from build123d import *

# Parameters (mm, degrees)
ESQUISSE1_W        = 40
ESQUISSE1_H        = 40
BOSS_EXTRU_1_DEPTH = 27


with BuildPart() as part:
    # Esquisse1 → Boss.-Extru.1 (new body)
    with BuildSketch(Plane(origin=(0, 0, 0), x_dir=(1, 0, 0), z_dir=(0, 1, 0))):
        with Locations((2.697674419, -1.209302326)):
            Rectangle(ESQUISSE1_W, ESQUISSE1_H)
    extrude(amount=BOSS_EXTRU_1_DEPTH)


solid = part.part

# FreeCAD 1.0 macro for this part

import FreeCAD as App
import Part
import Sketcher

V = App.Vector
Q = App.Units.Quantity

doc = App.newDocument("Part")
params = doc.addObject("Spreadsheet::Sheet", "Params")
for row, (alias, value) in enumerate([
    ("sketch1_width", "40 mm"),
    ("pad1_length", "27 mm"),
], start=1):
    params.set(f"A{row}", alias)
    params.set(f"B{row}", "=" + value)
    params.setAlias(f"B{row}", alias)

body = doc.addObject("PartDesign::Body", "Body")

sketch1 = body.newObject("Sketcher::SketchObject", "Sketch")
sketch1.AttachmentSupport = (doc.getObject("XZ_Plane"), [""])
sketch1.MapMode = "FlatFace"
sketch1.addGeometry([
    Part.LineSegment(V(-17, -19, 0), V(-17, 21, 0)),
    Part.LineSegment(V(-17, 21, 0), V(23, 21, 0)),
    Part.LineSegment(V(23, 21, 0), V(23, -19, 0)),
    Part.LineSegment(V(23, -19, 0), V(-17, -19, 0)),
], False)
sketch1.addConstraint([
    Sketcher.Constraint("Coincident", 0, 2, 1, 1),
    Sketcher.Constraint("Coincident", 1, 2, 2, 1),
    Sketcher.Constraint("Coincident", 2, 2, 3, 1),
    Sketcher.Constraint("Coincident", 3, 2, 0, 1),
    Sketcher.Constraint("Vertical", 0),
    Sketcher.Constraint("Horizontal", 1),
    Sketcher.Constraint("Vertical", 2),
    Sketcher.Constraint("Horizontal", 3),
    Sketcher.Constraint("Equal", 3, 0),
    Sketcher.Constraint("DistanceX", 1, 1, 1, 2, Q("40 mm")),
    Sketcher.Constraint("DistanceX", 0, 2, -1, 1, Q("17.302326 mm")),
    Sketcher.Constraint("DistanceY", -1, 1, 0, 2, Q("21.209302 mm")),
])
sketch1.setExpression("Constraints[9]", "Params.sketch1_width")
pad1 = body.newObject("PartDesign::Pad", "Pad")
pad1.Profile = sketch1
pad1.setExpression("Length", "Params.pad1_length")
pad1.Reversed = True

doc.recompute()
